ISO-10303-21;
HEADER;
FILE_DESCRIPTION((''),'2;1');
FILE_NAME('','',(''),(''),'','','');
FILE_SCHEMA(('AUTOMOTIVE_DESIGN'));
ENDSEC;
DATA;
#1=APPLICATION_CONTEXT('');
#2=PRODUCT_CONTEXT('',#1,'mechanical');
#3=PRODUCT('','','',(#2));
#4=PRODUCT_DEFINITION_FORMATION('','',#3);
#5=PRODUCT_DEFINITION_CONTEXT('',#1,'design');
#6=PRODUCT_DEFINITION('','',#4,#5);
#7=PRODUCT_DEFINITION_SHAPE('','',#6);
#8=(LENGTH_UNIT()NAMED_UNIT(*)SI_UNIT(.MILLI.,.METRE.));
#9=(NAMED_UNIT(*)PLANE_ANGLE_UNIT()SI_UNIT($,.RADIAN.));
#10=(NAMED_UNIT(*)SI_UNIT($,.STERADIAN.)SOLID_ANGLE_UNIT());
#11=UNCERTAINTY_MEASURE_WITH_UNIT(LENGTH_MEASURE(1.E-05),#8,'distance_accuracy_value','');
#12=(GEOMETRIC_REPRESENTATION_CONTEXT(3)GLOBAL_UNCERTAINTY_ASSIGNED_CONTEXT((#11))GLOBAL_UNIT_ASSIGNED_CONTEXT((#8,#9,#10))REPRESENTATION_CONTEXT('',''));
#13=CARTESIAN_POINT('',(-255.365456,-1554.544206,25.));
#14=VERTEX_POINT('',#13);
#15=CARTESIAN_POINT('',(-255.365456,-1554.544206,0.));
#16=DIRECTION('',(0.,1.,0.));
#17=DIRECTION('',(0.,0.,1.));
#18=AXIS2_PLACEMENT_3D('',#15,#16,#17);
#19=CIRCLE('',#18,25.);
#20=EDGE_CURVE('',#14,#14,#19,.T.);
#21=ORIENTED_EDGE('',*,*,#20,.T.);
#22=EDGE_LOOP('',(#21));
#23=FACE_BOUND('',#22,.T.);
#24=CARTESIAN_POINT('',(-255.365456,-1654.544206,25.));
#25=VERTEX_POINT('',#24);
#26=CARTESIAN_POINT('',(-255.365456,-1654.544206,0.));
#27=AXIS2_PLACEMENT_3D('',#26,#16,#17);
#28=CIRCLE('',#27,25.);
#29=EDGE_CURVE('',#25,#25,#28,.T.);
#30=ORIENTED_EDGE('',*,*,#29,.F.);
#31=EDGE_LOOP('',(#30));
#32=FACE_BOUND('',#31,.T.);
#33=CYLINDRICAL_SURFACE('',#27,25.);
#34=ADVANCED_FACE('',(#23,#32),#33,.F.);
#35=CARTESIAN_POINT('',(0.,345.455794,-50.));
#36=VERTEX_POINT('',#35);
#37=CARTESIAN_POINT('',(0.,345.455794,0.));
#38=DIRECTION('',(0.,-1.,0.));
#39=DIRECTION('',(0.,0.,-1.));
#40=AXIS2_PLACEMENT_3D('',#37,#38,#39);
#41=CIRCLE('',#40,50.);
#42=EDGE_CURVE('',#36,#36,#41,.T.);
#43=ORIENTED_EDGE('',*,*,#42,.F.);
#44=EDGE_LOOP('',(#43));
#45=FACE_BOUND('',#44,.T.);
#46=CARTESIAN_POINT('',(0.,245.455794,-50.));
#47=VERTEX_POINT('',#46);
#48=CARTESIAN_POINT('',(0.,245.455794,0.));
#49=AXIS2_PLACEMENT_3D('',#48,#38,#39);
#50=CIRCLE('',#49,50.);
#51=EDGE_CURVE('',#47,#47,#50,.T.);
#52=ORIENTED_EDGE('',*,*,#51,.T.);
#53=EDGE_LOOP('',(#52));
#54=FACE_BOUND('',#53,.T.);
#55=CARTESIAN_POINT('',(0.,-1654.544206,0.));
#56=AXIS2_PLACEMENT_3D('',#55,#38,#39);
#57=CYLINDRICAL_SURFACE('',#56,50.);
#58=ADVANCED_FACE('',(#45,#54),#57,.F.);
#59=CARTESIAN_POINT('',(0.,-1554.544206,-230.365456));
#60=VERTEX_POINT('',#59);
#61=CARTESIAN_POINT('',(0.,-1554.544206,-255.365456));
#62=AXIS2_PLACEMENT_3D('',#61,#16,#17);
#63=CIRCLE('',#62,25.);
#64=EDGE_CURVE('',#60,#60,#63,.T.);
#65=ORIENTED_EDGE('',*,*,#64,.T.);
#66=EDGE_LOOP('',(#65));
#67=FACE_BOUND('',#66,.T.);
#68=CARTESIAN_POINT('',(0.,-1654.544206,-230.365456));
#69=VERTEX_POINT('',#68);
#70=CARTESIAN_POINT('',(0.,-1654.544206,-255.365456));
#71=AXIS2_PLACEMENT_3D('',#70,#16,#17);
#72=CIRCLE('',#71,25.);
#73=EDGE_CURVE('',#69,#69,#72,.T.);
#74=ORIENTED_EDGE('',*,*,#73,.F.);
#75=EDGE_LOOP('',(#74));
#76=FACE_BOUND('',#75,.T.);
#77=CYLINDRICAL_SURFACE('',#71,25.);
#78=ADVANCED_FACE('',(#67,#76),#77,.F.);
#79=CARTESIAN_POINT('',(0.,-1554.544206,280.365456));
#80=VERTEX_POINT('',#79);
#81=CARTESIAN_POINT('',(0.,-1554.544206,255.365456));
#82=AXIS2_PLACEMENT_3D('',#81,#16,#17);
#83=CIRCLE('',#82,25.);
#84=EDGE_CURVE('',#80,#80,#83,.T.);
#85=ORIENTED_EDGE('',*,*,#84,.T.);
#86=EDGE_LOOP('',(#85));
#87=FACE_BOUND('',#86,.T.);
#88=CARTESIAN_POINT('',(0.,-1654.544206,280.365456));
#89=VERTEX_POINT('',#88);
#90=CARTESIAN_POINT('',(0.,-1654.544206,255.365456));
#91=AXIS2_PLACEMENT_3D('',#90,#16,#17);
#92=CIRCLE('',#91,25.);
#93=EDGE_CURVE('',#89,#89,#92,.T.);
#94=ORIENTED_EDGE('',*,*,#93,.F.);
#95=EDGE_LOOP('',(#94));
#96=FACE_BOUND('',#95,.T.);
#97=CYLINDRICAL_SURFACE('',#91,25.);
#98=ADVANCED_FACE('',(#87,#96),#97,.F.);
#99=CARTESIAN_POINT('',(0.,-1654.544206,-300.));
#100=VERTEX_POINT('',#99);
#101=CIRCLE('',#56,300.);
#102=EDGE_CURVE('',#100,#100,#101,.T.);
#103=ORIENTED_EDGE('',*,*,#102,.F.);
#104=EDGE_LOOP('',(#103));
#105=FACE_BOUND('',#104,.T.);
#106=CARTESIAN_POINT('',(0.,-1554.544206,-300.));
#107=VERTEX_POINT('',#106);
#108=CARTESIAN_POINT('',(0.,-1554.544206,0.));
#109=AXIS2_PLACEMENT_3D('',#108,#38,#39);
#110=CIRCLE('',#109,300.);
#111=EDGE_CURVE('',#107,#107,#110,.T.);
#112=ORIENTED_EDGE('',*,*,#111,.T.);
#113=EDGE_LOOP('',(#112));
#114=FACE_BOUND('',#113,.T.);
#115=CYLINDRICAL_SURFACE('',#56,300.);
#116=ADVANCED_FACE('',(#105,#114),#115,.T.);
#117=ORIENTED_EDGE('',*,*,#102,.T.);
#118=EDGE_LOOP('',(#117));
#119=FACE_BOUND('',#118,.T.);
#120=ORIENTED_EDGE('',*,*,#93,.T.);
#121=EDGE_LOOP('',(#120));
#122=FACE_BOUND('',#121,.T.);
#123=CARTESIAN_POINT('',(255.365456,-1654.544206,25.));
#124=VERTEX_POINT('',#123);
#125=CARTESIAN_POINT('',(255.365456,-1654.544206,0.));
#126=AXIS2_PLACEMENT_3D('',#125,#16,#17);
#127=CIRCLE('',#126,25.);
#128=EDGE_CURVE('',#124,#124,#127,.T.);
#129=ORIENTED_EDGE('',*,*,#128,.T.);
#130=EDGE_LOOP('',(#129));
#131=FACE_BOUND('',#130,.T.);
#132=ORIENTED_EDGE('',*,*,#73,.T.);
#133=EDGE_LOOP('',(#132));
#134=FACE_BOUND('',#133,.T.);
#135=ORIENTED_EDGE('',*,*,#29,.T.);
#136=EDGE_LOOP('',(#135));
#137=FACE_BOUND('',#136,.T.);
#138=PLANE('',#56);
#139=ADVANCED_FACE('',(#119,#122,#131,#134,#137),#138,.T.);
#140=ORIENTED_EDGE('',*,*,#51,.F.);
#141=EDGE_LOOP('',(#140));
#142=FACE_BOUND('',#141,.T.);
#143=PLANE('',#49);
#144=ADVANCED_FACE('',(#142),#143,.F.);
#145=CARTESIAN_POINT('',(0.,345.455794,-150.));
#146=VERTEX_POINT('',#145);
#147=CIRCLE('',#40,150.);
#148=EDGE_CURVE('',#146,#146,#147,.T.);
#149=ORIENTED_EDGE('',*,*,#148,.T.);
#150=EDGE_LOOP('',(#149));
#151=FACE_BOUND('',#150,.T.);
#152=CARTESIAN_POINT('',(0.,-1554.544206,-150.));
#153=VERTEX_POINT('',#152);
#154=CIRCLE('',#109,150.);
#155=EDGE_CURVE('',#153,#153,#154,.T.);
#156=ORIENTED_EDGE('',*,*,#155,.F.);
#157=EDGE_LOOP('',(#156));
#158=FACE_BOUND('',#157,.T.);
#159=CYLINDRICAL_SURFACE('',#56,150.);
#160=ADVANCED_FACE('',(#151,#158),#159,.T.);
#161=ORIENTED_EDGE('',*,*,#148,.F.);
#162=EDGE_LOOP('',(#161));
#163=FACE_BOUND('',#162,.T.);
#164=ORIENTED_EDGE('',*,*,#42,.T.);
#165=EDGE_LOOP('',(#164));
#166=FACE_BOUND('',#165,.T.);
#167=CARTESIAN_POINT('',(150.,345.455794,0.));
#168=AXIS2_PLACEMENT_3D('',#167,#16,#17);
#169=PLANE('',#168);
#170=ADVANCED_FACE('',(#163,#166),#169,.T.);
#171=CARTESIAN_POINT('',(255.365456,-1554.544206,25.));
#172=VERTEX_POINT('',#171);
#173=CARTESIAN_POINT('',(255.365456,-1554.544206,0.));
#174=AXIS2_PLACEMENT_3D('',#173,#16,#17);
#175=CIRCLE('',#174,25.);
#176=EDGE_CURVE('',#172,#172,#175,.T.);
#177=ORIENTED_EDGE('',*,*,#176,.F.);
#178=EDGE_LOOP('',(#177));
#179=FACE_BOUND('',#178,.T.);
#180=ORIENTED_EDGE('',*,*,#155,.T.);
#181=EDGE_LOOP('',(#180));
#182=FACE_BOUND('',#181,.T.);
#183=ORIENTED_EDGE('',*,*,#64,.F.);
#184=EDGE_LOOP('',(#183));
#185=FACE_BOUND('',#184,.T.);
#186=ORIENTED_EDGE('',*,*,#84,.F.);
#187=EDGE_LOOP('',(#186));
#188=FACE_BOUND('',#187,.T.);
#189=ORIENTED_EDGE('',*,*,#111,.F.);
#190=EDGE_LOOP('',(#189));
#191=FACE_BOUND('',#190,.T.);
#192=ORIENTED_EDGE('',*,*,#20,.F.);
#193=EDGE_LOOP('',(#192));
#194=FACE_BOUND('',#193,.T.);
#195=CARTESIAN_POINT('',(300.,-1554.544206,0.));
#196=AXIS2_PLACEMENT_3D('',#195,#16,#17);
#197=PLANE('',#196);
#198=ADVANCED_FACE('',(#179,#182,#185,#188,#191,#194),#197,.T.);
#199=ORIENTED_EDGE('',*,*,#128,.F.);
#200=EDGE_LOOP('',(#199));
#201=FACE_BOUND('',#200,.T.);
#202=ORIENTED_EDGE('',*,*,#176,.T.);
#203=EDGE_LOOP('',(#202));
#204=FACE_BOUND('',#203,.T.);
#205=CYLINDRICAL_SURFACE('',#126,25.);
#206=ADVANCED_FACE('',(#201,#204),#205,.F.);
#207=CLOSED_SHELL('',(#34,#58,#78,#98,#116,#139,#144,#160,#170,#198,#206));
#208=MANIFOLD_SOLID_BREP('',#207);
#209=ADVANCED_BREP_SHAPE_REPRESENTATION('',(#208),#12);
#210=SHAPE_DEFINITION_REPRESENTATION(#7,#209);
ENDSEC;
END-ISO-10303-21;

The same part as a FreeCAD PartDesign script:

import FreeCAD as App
import Part
import Sketcher
Q = App.Units.Quantity

doc = App.newDocument("Part")
body = doc.addObject("PartDesign::Body", "Body")

# Sketch on XY plane
sketch1 = doc.addObject("Sketcher::SketchObject", "Sketch")
body.addObject(sketch1)
sketch1.AttachmentSupport = (doc.XY_Plane, [""])
sketch1.MapMode = "FlatFace"
sketch1.addGeometry(Part.LineSegment(App.Vector(0, -1655, 0), App.Vector(300, -1655, 0)), False)
sketch1.addGeometry(Part.LineSegment(App.Vector(300, -1655, 0), App.Vector(300, -1555, 0)), False)
sketch1.addGeometry(Part.LineSegment(App.Vector(300, -1555, 0), App.Vector(150, -1555, 0)), False)
sketch1.addGeometry(Part.LineSegment(App.Vector(150, -1555, 0), App.Vector(150, 345, 0)), False)
sketch1.addGeometry(Part.LineSegment(App.Vector(150, 345, 0), App.Vector(50, 345, 0)), False)
sketch1.addGeometry(Part.LineSegment(App.Vector(50, 345, 0), App.Vector(50, 245, 0)), False)
sketch1.addGeometry(Part.LineSegment(App.Vector(50, 245, 0), App.Vector(0, 245, 0)), False)
sketch1.addGeometry(Part.LineSegment(App.Vector(0, 245, 0), App.Vector(0, -1655, 0)), False)
sketch1.addConstraint(Sketcher.Constraint("Coincident", 0, 2, 1, 1))
sketch1.addConstraint(Sketcher.Constraint("Coincident", 1, 2, 2, 1))
sketch1.addConstraint(Sketcher.Constraint("Coincident", 2, 2, 3, 1))
sketch1.addConstraint(Sketcher.Constraint("Coincident", 3, 2, 4, 1))
sketch1.addConstraint(Sketcher.Constraint("Coincident", 4, 2, 5, 1))
sketch1.addConstraint(Sketcher.Constraint("Coincident", 5, 2, 6, 1))
sketch1.addConstraint(Sketcher.Constraint("Coincident", 6, 2, 7, 1))
sketch1.addConstraint(Sketcher.Constraint("Coincident", 7, 2, 0, 1))
sketch1.addConstraint(Sketcher.Constraint("Horizontal", 0))
sketch1.addConstraint(Sketcher.Constraint("Vertical", 1))
sketch1.addConstraint(Sketcher.Constraint("Horizontal", 2))
sketch1.addConstraint(Sketcher.Constraint("Vertical", 3))
sketch1.addConstraint(Sketcher.Constraint("Horizontal", 4))
sketch1.addConstraint(Sketcher.Constraint("Vertical", 5))
sketch1.addConstraint(Sketcher.Constraint("Horizontal", 6))
sketch1.addConstraint(Sketcher.Constraint("Vertical", 7))
sketch1.addConstraint(Sketcher.Constraint("PointOnObject", 6, 2, -2))
sketch1.addConstraint(Sketcher.Constraint("Equal", 4, 1))
sketch1.addConstraint(Sketcher.Constraint("Equal", 1, 5))
sketch1.addConstraint(Sketcher.Constraint("DistanceX", 0, 1, 0, 2, Q("300 mm")))
sketch1.addConstraint(Sketcher.Constraint("DistanceX", 2, 2, 2, 1, Q("150 mm")))
sketch1.addConstraint(Sketcher.Constraint("DistanceX", 4, 2, 4, 1, Q("100 mm")))
sketch1.addConstraint(Sketcher.Constraint("DistanceY", 3, 1, 3, 2, Q("1900 mm")))
sketch1.addConstraint(Sketcher.Constraint("DistanceY", 0, 2, -1, 1, Q("1654.544206 mm")))
revolution = doc.addObject("PartDesign::Revolution", "Revolution")
body.addObject(revolution)
revolution.Profile = sketch1
revolution.ReferenceAxis = (sketch1, ["V_Axis"])
revolution.Angle = 360

# Sketch on XZ plane
sketch2 = doc.addObject("Sketcher::SketchObject", "Sketch001")
body.addObject(sketch2)
sketch2.AttachmentSupport = (doc.XZ_Plane, [""])
sketch2.MapMode = "FlatFace"
sketch2.AttachmentOffset = App.Placement(App.Vector(0, 0, 1554.544206), App.Rotation())
sketch2.addGeometry(Part.Circle(App.Vector(0, -255, 0), App.Vector(0, 0, 1), 25), False)
sketch2.addGeometry(Part.Circle(App.Vector(255, 0, 0), App.Vector(0, 0, 1), 25), False)
sketch2.addGeometry(Part.Circle(App.Vector(0, 255, 0), App.Vector(0, 0, 1), 25), False)
sketch2.addGeometry(Part.Circle(App.Vector(-255, 0, 0), App.Vector(0, 0, 1), 25), False)
sketch2.addConstraint(Sketcher.Constraint("Equal", 0, 1))
sketch2.addConstraint(Sketcher.Constraint("Equal", 1, 2))
sketch2.addConstraint(Sketcher.Constraint("Equal", 2, 3))
sketch2.addConstraint(Sketcher.Constraint("Symmetric", 0, 3, 2, 3, -1, 1))
sketch2.addConstraint(Sketcher.Constraint("Symmetric", 1, 3, 3, 3, -1, 1))
sketch2.addConstraint(Sketcher.Constraint("PointOnObject", 0, 3, -2))
sketch2.addConstraint(Sketcher.Constraint("PointOnObject", 1, 3, -1))
sketch2.addConstraint(Sketcher.Constraint("Diameter", 0, Q("50 mm")))
sketch2.addConstraint(Sketcher.Constraint("DistanceY", 0, 3, 2, 3, Q("510.730911 mm")))
sketch2.addConstraint(Sketcher.Constraint("DistanceX", 3, 3, 1, 3, Q("510.730911 mm")))
pocket1 = doc.addObject("PartDesign::Pocket", "Pocket")
body.addObject(pocket1)
pocket1.Profile = sketch2
pocket1.Length = 100
pocket1.Reversed = True

doc.recompute()
